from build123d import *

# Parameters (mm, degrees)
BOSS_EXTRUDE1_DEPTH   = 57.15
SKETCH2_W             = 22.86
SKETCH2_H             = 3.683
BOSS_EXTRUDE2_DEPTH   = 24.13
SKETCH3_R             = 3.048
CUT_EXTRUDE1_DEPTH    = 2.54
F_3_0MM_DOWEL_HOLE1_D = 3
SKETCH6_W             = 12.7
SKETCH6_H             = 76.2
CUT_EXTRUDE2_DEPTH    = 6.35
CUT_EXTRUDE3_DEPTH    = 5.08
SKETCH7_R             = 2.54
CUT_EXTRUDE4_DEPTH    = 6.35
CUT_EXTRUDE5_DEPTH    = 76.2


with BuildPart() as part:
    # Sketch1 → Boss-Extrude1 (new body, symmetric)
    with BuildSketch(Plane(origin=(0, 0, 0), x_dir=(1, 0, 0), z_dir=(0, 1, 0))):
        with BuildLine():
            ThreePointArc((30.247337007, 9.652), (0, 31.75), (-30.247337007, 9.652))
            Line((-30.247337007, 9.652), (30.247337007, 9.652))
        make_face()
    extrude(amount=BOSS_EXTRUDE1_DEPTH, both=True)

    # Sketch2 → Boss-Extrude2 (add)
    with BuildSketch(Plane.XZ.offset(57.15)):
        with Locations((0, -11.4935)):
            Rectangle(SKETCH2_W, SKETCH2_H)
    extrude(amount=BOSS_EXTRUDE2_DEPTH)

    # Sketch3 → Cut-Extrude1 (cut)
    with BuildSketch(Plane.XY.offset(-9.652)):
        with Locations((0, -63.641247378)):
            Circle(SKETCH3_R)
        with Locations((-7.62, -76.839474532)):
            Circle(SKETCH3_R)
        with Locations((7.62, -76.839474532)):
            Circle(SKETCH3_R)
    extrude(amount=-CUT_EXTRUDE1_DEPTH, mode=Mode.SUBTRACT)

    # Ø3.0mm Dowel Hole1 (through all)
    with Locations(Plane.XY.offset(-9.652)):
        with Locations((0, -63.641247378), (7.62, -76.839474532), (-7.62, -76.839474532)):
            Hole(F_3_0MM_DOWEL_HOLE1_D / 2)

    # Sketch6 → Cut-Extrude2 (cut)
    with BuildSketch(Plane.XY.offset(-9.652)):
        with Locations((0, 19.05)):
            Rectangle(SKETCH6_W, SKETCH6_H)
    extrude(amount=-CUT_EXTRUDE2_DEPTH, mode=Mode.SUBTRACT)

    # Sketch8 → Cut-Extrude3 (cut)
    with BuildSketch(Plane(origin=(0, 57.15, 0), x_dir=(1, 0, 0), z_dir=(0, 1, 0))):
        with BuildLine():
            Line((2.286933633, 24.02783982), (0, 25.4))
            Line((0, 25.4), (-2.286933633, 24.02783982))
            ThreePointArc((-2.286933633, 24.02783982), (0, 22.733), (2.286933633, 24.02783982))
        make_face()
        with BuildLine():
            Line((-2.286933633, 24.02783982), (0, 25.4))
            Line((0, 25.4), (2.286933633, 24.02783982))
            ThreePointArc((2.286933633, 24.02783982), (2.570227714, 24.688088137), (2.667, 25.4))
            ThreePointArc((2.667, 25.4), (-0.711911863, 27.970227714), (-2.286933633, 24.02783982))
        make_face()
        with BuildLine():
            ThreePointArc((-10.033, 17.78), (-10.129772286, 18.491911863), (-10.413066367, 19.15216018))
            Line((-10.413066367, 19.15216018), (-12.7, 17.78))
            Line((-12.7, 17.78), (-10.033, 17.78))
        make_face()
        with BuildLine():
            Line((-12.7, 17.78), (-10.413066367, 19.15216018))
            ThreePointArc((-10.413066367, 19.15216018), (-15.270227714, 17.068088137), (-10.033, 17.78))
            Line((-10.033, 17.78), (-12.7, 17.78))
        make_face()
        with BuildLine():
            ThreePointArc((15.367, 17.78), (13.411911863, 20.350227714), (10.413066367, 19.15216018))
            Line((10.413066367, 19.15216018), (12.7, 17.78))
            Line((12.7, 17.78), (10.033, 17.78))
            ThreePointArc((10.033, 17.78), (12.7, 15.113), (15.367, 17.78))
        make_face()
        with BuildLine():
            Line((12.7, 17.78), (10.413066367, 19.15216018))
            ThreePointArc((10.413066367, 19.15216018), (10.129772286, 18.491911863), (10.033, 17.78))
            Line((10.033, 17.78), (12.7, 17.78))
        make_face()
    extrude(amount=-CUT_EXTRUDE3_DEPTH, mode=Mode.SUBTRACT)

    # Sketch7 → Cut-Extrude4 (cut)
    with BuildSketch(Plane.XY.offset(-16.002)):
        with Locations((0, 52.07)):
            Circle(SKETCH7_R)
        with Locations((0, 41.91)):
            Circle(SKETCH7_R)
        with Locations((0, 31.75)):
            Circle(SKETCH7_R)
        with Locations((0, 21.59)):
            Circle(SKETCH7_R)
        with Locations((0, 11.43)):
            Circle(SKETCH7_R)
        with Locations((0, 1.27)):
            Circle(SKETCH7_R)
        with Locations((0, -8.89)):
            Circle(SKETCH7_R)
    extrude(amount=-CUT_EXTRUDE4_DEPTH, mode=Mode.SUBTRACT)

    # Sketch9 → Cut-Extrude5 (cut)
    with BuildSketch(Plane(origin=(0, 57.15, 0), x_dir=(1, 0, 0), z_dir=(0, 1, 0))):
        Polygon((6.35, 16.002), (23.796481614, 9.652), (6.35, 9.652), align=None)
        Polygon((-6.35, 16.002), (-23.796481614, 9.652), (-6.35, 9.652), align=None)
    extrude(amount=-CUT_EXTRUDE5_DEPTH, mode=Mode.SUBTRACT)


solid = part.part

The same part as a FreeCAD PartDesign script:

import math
import FreeCAD as App
import Part
import Sketcher

V = App.Vector
Q = App.Units.Quantity


def add_polygon(sketch, points):
    """Adds a closed chain of lines whose ends are joined by coincident constraints."""
    first, n = sketch.GeometryCount, len(points)
    for a, b in zip(points, points[1:] + points[:1]):
        sketch.addGeometry(Part.LineSegment(App.Vector(*a, 0), App.Vector(*b, 0)), False)
    for i in range(n):
        sketch.addConstraint(Sketcher.Constraint("Coincident", first + i, 2, first + (i + 1) % n, 1))

doc = App.newDocument("Part")
body = doc.addObject("PartDesign::Body", "Body")

sketch1 = body.newObject("Sketcher::SketchObject", "Sketch")
sketch1.AttachmentSupport = (doc.getObject("XZ_Plane"), [""])
sketch1.MapMode = "FlatFace"
sketch1.addGeometry([
    Part.ArcOfCircle(Part.Circle(V(0, 0, 0), V(0, 0, 1), 32), math.radians(-162), math.radians(-18)),
    Part.LineSegment(V(-30, -10, 0), V(30, -10, 0)),
], False)
sketch1.addConstraint([
    Sketcher.Constraint("Coincident", 0, 1, 1, 1),
    Sketcher.Constraint("Coincident", 1, 2, 0, 2),
    Sketcher.Constraint("Horizontal", 1),
    Sketcher.Constraint("Coincident", 0, 3, -1, 1),
    Sketcher.Constraint("Radius", 0, Q("1.25 in")),
    Sketcher.Constraint("DistanceY", 0, 1, -1, 1, Q("0.38 in")),
])
pad1 = body.newObject("PartDesign::Pad", "Pad")
pad1.Profile = sketch1
pad1.Length = Q("4.5 in")
pad1.Midplane = True

sketch2 = body.newObject("Sketcher::SketchObject", "Sketch001")
sketch2.AttachmentSupport = (doc.getObject("XZ_Plane"), [""])
sketch2.MapMode = "FlatFace"
sketch2.AttachmentOffset = App.Placement(V(0, 0, 2.25 * 25.4), App.Rotation())
add_polygon(sketch2, [(-11.4, -9.7), (-11.4, -13.3), (11.4, -13.3), (11.4, -9.7)])
sketch2.addConstraint([
    Sketcher.Constraint("Vertical", 0),
    Sketcher.Constraint("Horizontal", 1),
    Sketcher.Constraint("Vertical", 2),
    Sketcher.Constraint("Horizontal", 3),
    Sketcher.Constraint("DistanceX", 1, 1, 1, 2, Q("0.9 in")),
    Sketcher.Constraint("DistanceY", 0, 2, 0, 1, Q("0.145 in")),
    Sketcher.Constraint("DistanceX", 0, 2, -1, 1, Q("0.45 in")),
    Sketcher.Constraint("DistanceY", 2, 2, -1, 1, Q("0.38 in")),
])
pad2 = body.newObject("PartDesign::Pad", "Pad001")
pad2.Profile = sketch2
pad2.Length = Q("0.95 in")

sketch3 = body.newObject("Sketcher::SketchObject", "Sketch002")
sketch3.AttachmentSupport = (doc.getObject("XY_Plane"), [""])
sketch3.MapMode = "FlatFace"
sketch3.AttachmentOffset = App.Placement(V(0, 0, -0.38 * 25.4), App.Rotation())
sketch3.addGeometry([
    Part.Circle(V(0, -63.6, 0), V(0, 0, 1), 3),
    Part.Circle(V(-7.6, -76.8, 0), V(0, 0, 1), 3),
    Part.Circle(V(7.6, -76.8, 0), V(0, 0, 1), 3),
], False)
sketch3.addConstraint([
    Sketcher.Constraint("Equal", 0, 1),
    Sketcher.Constraint("Equal", 1, 2),
    Sketcher.Constraint("Symmetric", 1, 3, 2, 3, -2),
    Sketcher.Constraint("PointOnObject", 0, 3, -2),
    Sketcher.Constraint("Diameter", 0, Q("0.24 in")),
    Sketcher.Constraint("DistanceX", 1, 3, -1, 1, Q("0.3 in")),
    Sketcher.Constraint("DistanceY", 0, 3, -1, 1, Q("63.641247 mm")),
    Sketcher.Constraint("DistanceY", 1, 3, -1, 1, Q("76.839475 mm")),
])
pocket1 = body.newObject("PartDesign::Pocket", "Pocket")
pocket1.Profile = sketch3
pocket1.Length = Q("0.1 in")

sketch4 = body.newObject("Sketcher::SketchObject", "Sketch003")
sketch4.AttachmentSupport = (doc.getObject("XY_Plane"), [""])
sketch4.MapMode = "FlatFace"
sketch4.AttachmentOffset = App.Placement(V(0, 0, -0.38 * 25.4), App.Rotation())
sketch4.addGeometry([
    Part.Circle(V(0, -63.6, 0), V(0, 0, 1), 1.5),
    Part.Circle(V(7.6, -76.8, 0), V(0, 0, 1), 1.5),
    Part.Circle(V(-7.6, -76.8, 0), V(0, 0, 1), 1.5),
], False)
sketch4.addConstraint([
    Sketcher.Constraint("Equal", 0, 1),
    Sketcher.Constraint("Equal", 1, 2),
    Sketcher.Constraint("Symmetric", 1, 3, 2, 3, -2),
    Sketcher.Constraint("PointOnObject", 0, 3, -2),
    Sketcher.Constraint("DistanceX", -1, 1, 1, 3, Q("0.3 in")),
    Sketcher.Constraint("Diameter", 0, Q("3 mm")),
    Sketcher.Constraint("DistanceY", 0, 3, -1, 1, Q("63.641247 mm")),
    Sketcher.Constraint("DistanceY", 1, 3, -1, 1, Q("76.839475 mm")),
])
doc.recompute()
hole = body.newObject("PartDesign::Hole", "Hole")
hole.Profile = sketch4
hole.ThreadType = "None"
hole.Diameter = 3
hole.DepthType = "ThroughAll"

sketch5 = body.newObject("Sketcher::SketchObject", "Sketch004")
sketch5.AttachmentSupport = (doc.getObject("XY_Plane"), [""])
sketch5.MapMode = "FlatFace"
sketch5.AttachmentOffset = App.Placement(V(0, 0, -0.38 * 25.4), App.Rotation())
add_polygon(sketch5, [(-6, 57), (-6, -19), (6, -19), (6, 57)])
sketch5.addConstraint([
    Sketcher.Constraint("Vertical", 0),
    Sketcher.Constraint("Horizontal", 1),
    Sketcher.Constraint("Vertical", 2),
    Sketcher.Constraint("Horizontal", 3),
    Sketcher.Constraint("DistanceY", 0, 2, 0, 1, Q("3 in")),
    Sketcher.Constraint("DistanceX", 1, 1, 1, 2, Q("0.5 in")),
    Sketcher.Constraint("DistanceX", 0, 2, -1, 1, Q("0.25 in")),
    Sketcher.Constraint("DistanceY", 0, 2, -1, 1, Q("0.75 in")),
])
pocket2 = body.newObject("PartDesign::Pocket", "Pocket001")
pocket2.Profile = sketch5
pocket2.Length = Q("0.25 in")

sketch6 = body.newObject("Sketcher::SketchObject", "Sketch005")
sketch6.AttachmentSupport = (doc.getObject("XZ_Plane"), [""])
sketch6.MapMode = "FlatFace"
sketch6.AttachmentOffset = App.Placement(V(0, 0, -2.25 * 25.4), App.Rotation())
sketch6.addGeometry([
    Part.ArcOfCircle(Part.Circle(V(0, -25.4, 0), V(0, 0, 1), 2.7), math.radians(31), math.radians(149)),
    Part.ArcOfCircle(Part.Circle(V(0, -25.4, 0), V(0, 0, 1), 2.7), math.radians(0), math.radians(31)),
    Part.ArcOfCircle(Part.Circle(V(0, -25.4, 0), V(0, 0, 1), 2.7), math.radians(149), math.radians(360)),
    Part.ArcOfCircle(Part.Circle(V(-12.7, -17.8, 0), V(0, 0, 1), 2.7), math.radians(-31), math.radians(0)),
    Part.ArcOfCircle(Part.Circle(V(-12.7, -17.8, 0), V(0, 0, 1), 2.7), math.radians(0), math.radians(329)),
    Part.ArcOfCircle(Part.Circle(V(12.7, -17.8, 0), V(0, 0, 1), 2.7), math.radians(-149), math.radians(0)),
    Part.ArcOfCircle(Part.Circle(V(12.7, -17.8, 0), V(0, 0, 1), 2.7), math.radians(180), math.radians(211)),
    Part.ArcOfCircle(Part.Circle(V(12.7, -17.8, 0), V(0, 0, 1), 2.7), math.radians(0), math.radians(180)),
], False)
sketch6.addConstraint([
    Sketcher.Constraint("Tangent", 0, 1, 1, 2),
    Sketcher.Constraint("Tangent", 1, 1, 2, 2),
    Sketcher.Constraint("Tangent", 2, 1, 0, 2),
    Sketcher.Constraint("Tangent", 3, 1, 4, 2),
    Sketcher.Constraint("Coincident", 4, 1, 3, 2),
    Sketcher.Constraint("Tangent", 5, 1, 6, 2),
    Sketcher.Constraint("Tangent", 6, 1, 7, 2),
    Sketcher.Constraint("Tangent", 7, 1, 5, 2),
    Sketcher.Constraint("Equal", 2, 3),
    Sketcher.Constraint("Equal", 4, 5),
    Sketcher.Constraint("Symmetric", 3, 3, 5, 3, -2),
    Sketcher.Constraint("Symmetric", 0, 1, 2, 1, -2),
    Sketcher.Constraint("Horizontal", 2, 3, 1, 1),
    Sketcher.Constraint("Horizontal", 7, 3, 4, 1),
    Sketcher.Constraint("Horizontal", 3, 1, 5, 1),
    Sketcher.Constraint("Horizontal", 4, 1, 6, 1),
    Sketcher.Constraint("Horizontal", 6, 1, 7, 1),
    Sketcher.Constraint("DistanceY", 0, 3, -1, 1, Q("1 in")),
    Sketcher.Constraint("Radius", 0, Q("0.105 in")),
    Sketcher.Constraint("DistanceX", 3, 3, 5, 3, Q("1 in")),
    Sketcher.Constraint("DistanceY", 3, 3, -1, 1, Q("0.7 in")),
    Sketcher.Constraint("DistanceY", 0, 1, -1, 1, Q("24.02784 mm")),
    Sketcher.Constraint("DistanceY", 3, 1, -1, 1, Q("19.15216 mm")),
])
pocket3 = body.newObject("PartDesign::Pocket", "Pocket002")
pocket3.Profile = sketch6
pocket3.Length = Q("0.2 in")
pocket3.Reversed = True

sketch7 = body.newObject("Sketcher::SketchObject", "Sketch006")
sketch7.AttachmentSupport = (doc.getObject("XY_Plane"), [""])
sketch7.MapMode = "FlatFace"
sketch7.AttachmentOffset = App.Placement(V(0, 0, -0.63 * 25.4), App.Rotation())
sketch7.addGeometry([
    Part.Circle(V(0, 52.1, 0), V(0, 0, 1), 2.5),
    Part.Circle(V(0, 41.9, 0), V(0, 0, 1), 2.5),
    Part.Circle(V(0, 31.8, 0), V(0, 0, 1), 2.5),
    Part.Circle(V(0, 21.6, 0), V(0, 0, 1), 2.5),
    Part.Circle(V(0, 11.4, 0), V(0, 0, 1), 2.5),
    Part.Circle(V(0, 1.3, 0), V(0, 0, 1), 2.5),
    Part.Circle(V(0, -8.9, 0), V(0, 0, 1), 2.5),
], False)
sketch7.addConstraint([
    Sketcher.Constraint("Equal", 0, 1),
    Sketcher.Constraint("Equal", 1, 2),
    Sketcher.Constraint("Equal", 2, 3),
    Sketcher.Constraint("Equal", 3, 4),
    Sketcher.Constraint("Equal", 4, 5),
    Sketcher.Constraint("Equal", 5, 6),
    Sketcher.Constraint("PointOnObject", 0, 3, -2),
    Sketcher.Constraint("PointOnObject", 1, 3, -2),
    Sketcher.Constraint("PointOnObject", 2, 3, -2),
    Sketcher.Constraint("PointOnObject", 3, 3, -2),
    Sketcher.Constraint("PointOnObject", 4, 3, -2),
    Sketcher.Constraint("PointOnObject", 5, 3, -2),
    Sketcher.Constraint("PointOnObject", 6, 3, -2),
    Sketcher.Constraint("Diameter", 0, Q("0.2 in")),
    Sketcher.Constraint("DistanceY", 5, 3, 0, 3, Q("2 in")),
    Sketcher.Constraint("DistanceY", 6, 3, 1, 3, Q("2 in")),
    Sketcher.Constraint("DistanceY", 1, 3, 0, 3, Q("0.4 in")),
    Sketcher.Constraint("DistanceY", 2, 3, 1, 3, Q("0.4 in")),
    Sketcher.Constraint("DistanceY", 3, 3, 2, 3, Q("0.4 in")),
    Sketcher.Constraint("DistanceY", 4, 3, 3, 3, Q("0.4 in")),
    Sketcher.Constraint("DistanceY", -1, 1, 0, 3, Q("2.05 in")),
])
pocket4 = body.newObject("PartDesign::Pocket", "Pocket003")
pocket4.Profile = sketch7
pocket4.Length = Q("0.25 in")

sketch8 = body.newObject("Sketcher::SketchObject", "Sketch007")
sketch8.AttachmentSupport = (doc.getObject("XZ_Plane"), [""])
sketch8.MapMode = "FlatFace"
sketch8.AttachmentOffset = App.Placement(V(0, 0, -2.25 * 25.4), App.Rotation())
add_polygon(sketch8, [(24, -10), (6, -16), (6, -10)])
add_polygon(sketch8, [(-6, -16), (-24, -10), (-6, -10)])
sketch8.addConstraint([
    Sketcher.Constraint("Vertical", 1),
    Sketcher.Constraint("Horizontal", 2),
    Sketcher.Constraint("Horizontal", 4),
    Sketcher.Constraint("Vertical", 5),
    Sketcher.Constraint("Symmetric", 2, 2, 3, 2, -2),
    Sketcher.Constraint("Symmetric", 0, 2, 5, 2, -2),
    Sketcher.Constraint("Angle", 0, Q("-160 deg")),
    Sketcher.Constraint("DistanceY", 1, 1, 1, 2, Q("0.25 in")),
    Sketcher.Constraint("DistanceX", 4, 2, 1, 2, Q("0.5 in")),
    Sketcher.Constraint("DistanceY", 0, 2, -1, 1, Q("0.63 in")),
])
pocket5 = body.newObject("PartDesign::Pocket", "Pocket004")
pocket5.Profile = sketch8
pocket5.Length = Q("3 in")
pocket5.Reversed = True

doc.recompute()
